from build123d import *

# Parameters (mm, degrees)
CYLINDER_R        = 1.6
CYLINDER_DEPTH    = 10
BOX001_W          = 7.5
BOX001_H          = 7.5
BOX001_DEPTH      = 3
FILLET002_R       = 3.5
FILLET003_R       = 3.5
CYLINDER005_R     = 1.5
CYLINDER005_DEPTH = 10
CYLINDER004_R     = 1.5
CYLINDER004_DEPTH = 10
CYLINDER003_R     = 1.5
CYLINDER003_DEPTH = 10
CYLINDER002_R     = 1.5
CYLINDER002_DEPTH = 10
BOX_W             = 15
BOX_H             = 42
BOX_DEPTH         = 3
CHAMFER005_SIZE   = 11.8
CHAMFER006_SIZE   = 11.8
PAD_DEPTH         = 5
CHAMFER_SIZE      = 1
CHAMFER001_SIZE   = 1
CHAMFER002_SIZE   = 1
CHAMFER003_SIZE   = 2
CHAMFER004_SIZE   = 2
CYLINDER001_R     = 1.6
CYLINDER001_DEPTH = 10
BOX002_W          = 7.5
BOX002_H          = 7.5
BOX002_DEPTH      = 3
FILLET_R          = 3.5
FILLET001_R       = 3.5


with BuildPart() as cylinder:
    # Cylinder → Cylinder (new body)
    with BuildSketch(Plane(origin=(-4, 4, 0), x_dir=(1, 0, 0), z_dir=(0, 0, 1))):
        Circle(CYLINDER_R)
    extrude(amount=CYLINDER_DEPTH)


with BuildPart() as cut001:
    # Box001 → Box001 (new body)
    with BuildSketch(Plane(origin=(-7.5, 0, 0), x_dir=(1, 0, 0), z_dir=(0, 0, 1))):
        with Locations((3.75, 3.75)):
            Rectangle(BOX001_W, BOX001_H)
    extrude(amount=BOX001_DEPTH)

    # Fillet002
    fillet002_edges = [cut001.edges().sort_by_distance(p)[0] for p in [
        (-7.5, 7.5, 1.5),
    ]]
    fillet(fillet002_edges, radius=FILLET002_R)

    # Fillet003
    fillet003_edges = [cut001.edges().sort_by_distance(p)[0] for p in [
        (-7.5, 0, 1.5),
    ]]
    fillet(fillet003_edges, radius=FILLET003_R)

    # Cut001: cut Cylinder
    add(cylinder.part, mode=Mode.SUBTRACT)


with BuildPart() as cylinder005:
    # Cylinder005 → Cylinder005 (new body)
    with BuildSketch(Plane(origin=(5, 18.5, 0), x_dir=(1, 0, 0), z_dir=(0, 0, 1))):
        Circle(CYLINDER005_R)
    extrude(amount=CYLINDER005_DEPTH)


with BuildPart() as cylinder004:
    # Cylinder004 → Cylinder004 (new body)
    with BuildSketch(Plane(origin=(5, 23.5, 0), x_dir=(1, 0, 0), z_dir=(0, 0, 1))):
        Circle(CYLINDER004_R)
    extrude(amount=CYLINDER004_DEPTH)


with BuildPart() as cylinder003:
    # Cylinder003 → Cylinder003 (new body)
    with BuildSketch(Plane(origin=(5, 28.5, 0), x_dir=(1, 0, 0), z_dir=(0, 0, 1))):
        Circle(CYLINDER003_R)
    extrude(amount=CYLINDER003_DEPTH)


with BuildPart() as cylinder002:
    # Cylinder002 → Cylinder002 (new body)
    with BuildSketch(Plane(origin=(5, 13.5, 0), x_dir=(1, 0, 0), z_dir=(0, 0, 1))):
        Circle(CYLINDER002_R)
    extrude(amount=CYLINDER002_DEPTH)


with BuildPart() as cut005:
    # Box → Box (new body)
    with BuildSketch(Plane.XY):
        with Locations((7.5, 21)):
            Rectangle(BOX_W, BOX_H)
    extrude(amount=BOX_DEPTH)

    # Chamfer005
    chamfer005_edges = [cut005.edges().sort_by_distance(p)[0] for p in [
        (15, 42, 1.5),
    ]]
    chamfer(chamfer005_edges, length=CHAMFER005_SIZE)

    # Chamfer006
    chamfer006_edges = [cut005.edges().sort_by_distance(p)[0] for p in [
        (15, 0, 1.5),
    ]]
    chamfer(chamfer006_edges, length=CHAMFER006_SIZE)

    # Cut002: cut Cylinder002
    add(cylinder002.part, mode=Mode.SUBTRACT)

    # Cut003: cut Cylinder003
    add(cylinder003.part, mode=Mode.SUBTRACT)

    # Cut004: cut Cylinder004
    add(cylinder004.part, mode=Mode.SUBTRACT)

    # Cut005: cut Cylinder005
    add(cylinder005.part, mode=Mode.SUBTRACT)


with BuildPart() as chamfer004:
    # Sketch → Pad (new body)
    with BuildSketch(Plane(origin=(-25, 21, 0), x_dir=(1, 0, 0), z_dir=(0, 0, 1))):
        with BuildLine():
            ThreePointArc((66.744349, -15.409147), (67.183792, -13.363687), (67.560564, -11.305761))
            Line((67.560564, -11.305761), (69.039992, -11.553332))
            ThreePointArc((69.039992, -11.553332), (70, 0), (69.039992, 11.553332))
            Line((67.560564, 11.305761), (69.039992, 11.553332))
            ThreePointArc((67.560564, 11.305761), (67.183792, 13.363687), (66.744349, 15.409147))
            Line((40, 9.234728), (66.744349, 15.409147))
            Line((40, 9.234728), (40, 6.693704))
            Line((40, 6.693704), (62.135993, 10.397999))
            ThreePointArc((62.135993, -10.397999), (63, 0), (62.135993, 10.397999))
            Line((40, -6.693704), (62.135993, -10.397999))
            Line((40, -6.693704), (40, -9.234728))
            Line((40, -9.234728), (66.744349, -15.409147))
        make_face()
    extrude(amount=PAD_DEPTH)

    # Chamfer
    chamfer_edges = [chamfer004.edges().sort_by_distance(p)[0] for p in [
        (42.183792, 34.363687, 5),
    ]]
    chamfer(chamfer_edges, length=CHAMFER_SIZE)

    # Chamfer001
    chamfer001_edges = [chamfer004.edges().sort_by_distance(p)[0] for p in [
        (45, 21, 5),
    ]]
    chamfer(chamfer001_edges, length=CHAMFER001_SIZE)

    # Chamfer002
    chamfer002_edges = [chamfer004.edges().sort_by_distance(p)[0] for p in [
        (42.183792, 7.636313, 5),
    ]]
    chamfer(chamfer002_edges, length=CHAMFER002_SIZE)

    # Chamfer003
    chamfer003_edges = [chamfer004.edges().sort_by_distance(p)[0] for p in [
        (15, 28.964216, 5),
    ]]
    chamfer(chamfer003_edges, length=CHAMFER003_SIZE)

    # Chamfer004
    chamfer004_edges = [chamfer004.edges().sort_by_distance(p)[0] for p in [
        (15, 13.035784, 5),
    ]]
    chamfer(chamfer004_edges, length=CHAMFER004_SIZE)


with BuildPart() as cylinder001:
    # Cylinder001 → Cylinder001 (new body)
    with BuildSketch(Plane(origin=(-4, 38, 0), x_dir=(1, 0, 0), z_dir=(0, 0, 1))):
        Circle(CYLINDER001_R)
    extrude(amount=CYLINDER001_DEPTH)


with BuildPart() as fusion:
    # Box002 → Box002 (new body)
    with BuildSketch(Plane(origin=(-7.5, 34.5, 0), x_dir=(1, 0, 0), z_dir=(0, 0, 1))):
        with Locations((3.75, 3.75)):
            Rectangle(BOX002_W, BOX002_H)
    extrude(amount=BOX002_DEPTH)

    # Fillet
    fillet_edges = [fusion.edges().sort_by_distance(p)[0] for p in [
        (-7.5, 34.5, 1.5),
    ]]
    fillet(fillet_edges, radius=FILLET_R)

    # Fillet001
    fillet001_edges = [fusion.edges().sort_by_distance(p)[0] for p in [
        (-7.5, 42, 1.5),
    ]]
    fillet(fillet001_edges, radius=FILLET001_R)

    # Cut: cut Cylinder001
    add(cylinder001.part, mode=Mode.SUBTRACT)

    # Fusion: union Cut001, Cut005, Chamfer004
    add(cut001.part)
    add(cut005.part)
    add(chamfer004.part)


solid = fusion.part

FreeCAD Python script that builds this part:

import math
import FreeCAD as App
import Part
import Sketcher
from FreeCAD import Vector
Q = App.Units.Quantity


def edges_at(feature, points):
    """Names of the edges that pass closest to the given points."""
    edges = feature.Shape.Edges
    near = lambda p: min(range(len(edges)), key=lambda i: edges[i].distToShape(Part.Vertex(*p))[0])
    return sorted({f"Edge{near(p) + 1}" for p in points})

doc = App.newDocument("Part")
body = doc.addObject("PartDesign::Body", "Body")

# Sketch on XY plane
sketch1 = body.newObject("Sketcher::SketchObject", "Sketch")
sketch1.AttachmentSupport = (doc.getObject("XY_Plane"), [""])
sketch1.MapMode = "FlatFace"
sketch1.addGeometry(Part.Circle(Vector(-4, 4, 0), Vector(0, 0, 1), 1.6), False)
sketch1.addConstraint(Sketcher.Constraint("Diameter", 0, 3.2))
sketch1.addConstraint(Sketcher.Constraint("DistanceX", 0, 3, -1, 1, 4.0))
sketch1.addConstraint(Sketcher.Constraint("DistanceY", -1, 1, 0, 3, 4.0))
pad1 = body.newObject("PartDesign::Pad", "Pad")
pad1.Profile = sketch1
pad1.Length = 10
body2 = doc.addObject("PartDesign::Body", "Body001")

# Sketch on XY plane
sketch2 = body2.newObject("Sketcher::SketchObject", "Sketch001")
sketch2.AttachmentSupport = (doc.getObject("XY_Plane001"), [""])
sketch2.MapMode = "FlatFace"
sketch2.addGeometry(Part.LineSegment(Vector(-7.5, 7.5, 0), Vector(-7.5, 0, 0)), False)
sketch2.addGeometry(Part.LineSegment(Vector(-7.5, 0, 0), Vector(0, 0, 0)), False)
sketch2.addGeometry(Part.LineSegment(Vector(0, 0, 0), Vector(0, 7.5, 0)), False)
sketch2.addGeometry(Part.LineSegment(Vector(0, 7.5, 0), Vector(-7.5, 7.5, 0)), False)
sketch2.addConstraint(Sketcher.Constraint("Coincident", 0, 2, 1, 1))
sketch2.addConstraint(Sketcher.Constraint("Coincident", 1, 2, 2, 1))
sketch2.addConstraint(Sketcher.Constraint("Coincident", 2, 2, 3, 1))
sketch2.addConstraint(Sketcher.Constraint("Coincident", 3, 2, 0, 1))
sketch2.addConstraint(Sketcher.Constraint("Vertical", 0))
sketch2.addConstraint(Sketcher.Constraint("Horizontal", 1))
sketch2.addConstraint(Sketcher.Constraint("Vertical", 2))
sketch2.addConstraint(Sketcher.Constraint("Horizontal", 3))
sketch2.addConstraint(Sketcher.Constraint("Coincident", 1, 2, -1, 1))
sketch2.addConstraint(Sketcher.Constraint("Equal", 3, 0))
sketch2.addConstraint(Sketcher.Constraint("DistanceX", 1, 1, 1, 2, 7.5))
pad2 = body2.newObject("PartDesign::Pad", "Pad001")
pad2.Profile = sketch2
pad2.Length = 3
doc.recompute()

fillet = body2.newObject("PartDesign::Fillet", "Fillet")
fillet.Base = (pad2, edges_at(pad2, [(-7.5, 7.5, 1.5)]))
fillet.Radius = 3.5
doc.recompute()

fillet2 = body2.newObject("PartDesign::Fillet", "Fillet001")
fillet2.Base = (fillet, edges_at(fillet, [(-7.5, 0, 1.5)]))
fillet2.Radius = 3.5
doc.recompute()

boolean = body2.newObject("PartDesign::Boolean", "Boolean")
boolean.Type = "Cut"
boolean.addObjects([body])
body3 = doc.addObject("PartDesign::Body", "Body002")

# Sketch on XY plane
sketch3 = body3.newObject("Sketcher::SketchObject", "Sketch002")
sketch3.AttachmentSupport = (doc.getObject("XY_Plane002"), [""])
sketch3.MapMode = "FlatFace"
sketch3.addGeometry(Part.Circle(Vector(5, 18.5, 0), Vector(0, 0, 1), 1.5), False)
sketch3.addConstraint(Sketcher.Constraint("Diameter", 0, 3.0))
sketch3.addConstraint(Sketcher.Constraint("DistanceX", -1, 1, 0, 3, 5.0))
sketch3.addConstraint(Sketcher.Constraint("DistanceY", -1, 1, 0, 3, 18.5))
pad3 = body3.newObject("PartDesign::Pad", "Pad002")
pad3.Profile = sketch3
pad3.Length = 10
body4 = doc.addObject("PartDesign::Body", "Body003")

# Sketch on XY plane
sketch4 = body4.newObject("Sketcher::SketchObject", "Sketch003")
sketch4.AttachmentSupport = (doc.getObject("XY_Plane003"), [""])
sketch4.MapMode = "FlatFace"
sketch4.addGeometry(Part.Circle(Vector(5, 23.5, 0), Vector(0, 0, 1), 1.5), False)
sketch4.addConstraint(Sketcher.Constraint("Diameter", 0, 3.0))
sketch4.addConstraint(Sketcher.Constraint("DistanceX", -1, 1, 0, 3, 5.0))
sketch4.addConstraint(Sketcher.Constraint("DistanceY", -1, 1, 0, 3, 23.5))
pad4 = body4.newObject("PartDesign::Pad", "Pad003")
pad4.Profile = sketch4
pad4.Length = 10
body5 = doc.addObject("PartDesign::Body", "Body004")

# Sketch on XY plane
sketch5 = body5.newObject("Sketcher::SketchObject", "Sketch004")
sketch5.AttachmentSupport = (doc.getObject("XY_Plane004"), [""])
sketch5.MapMode = "FlatFace"
sketch5.addGeometry(Part.Circle(Vector(5, 28.5, 0), Vector(0, 0, 1), 1.5), False)
sketch5.addConstraint(Sketcher.Constraint("Diameter", 0, 3.0))
sketch5.addConstraint(Sketcher.Constraint("DistanceX", -1, 1, 0, 3, 5.0))
sketch5.addConstraint(Sketcher.Constraint("DistanceY", -1, 1, 0, 3, 28.5))
pad5 = body5.newObject("PartDesign::Pad", "Pad004")
pad5.Profile = sketch5
pad5.Length = 10
body6 = doc.addObject("PartDesign::Body", "Body005")

# Sketch on XY plane
sketch6 = body6.newObject("Sketcher::SketchObject", "Sketch005")
sketch6.AttachmentSupport = (doc.getObject("XY_Plane005"), [""])
sketch6.MapMode = "FlatFace"
sketch6.addGeometry(Part.Circle(Vector(5, 13.5, 0), Vector(0, 0, 1), 1.5), False)
sketch6.addConstraint(Sketcher.Constraint("Diameter", 0, 3.0))
sketch6.addConstraint(Sketcher.Constraint("DistanceX", -1, 1, 0, 3, 5.0))
sketch6.addConstraint(Sketcher.Constraint("DistanceY", -1, 1, 0, 3, 13.5))
pad6 = body6.newObject("PartDesign::Pad", "Pad005")
pad6.Profile = sketch6
pad6.Length = 10
body7 = doc.addObject("PartDesign::Body", "Body006")

# Sketch on XY plane
sketch7 = body7.newObject("Sketcher::SketchObject", "Sketch006")
sketch7.AttachmentSupport = (doc.getObject("XY_Plane006"), [""])
sketch7.MapMode = "FlatFace"
sketch7.addGeometry(Part.LineSegment(Vector(0, 42, 0), Vector(0, 0, 0)), False)
sketch7.addGeometry(Part.LineSegment(Vector(0, 0, 0), Vector(15, 0, 0)), False)
sketch7.addGeometry(Part.LineSegment(Vector(15, 0, 0), Vector(15, 42, 0)), False)
sketch7.addGeometry(Part.LineSegment(Vector(15, 42, 0), Vector(0, 42, 0)), False)
sketch7.addConstraint(Sketcher.Constraint("Coincident", 0, 2, 1, 1))
sketch7.addConstraint(Sketcher.Constraint("Coincident", 1, 2, 2, 1))
sketch7.addConstraint(Sketcher.Constraint("Coincident", 2, 2, 3, 1))
sketch7.addConstraint(Sketcher.Constraint("Coincident", 3, 2, 0, 1))
sketch7.addConstraint(Sketcher.Constraint("Vertical", 0))
sketch7.addConstraint(Sketcher.Constraint("Horizontal", 1))
sketch7.addConstraint(Sketcher.Constraint("Vertical", 2))
sketch7.addConstraint(Sketcher.Constraint("Horizontal", 3))
sketch7.addConstraint(Sketcher.Constraint("Coincident", 0, 2, -1, 1))
sketch7.addConstraint(Sketcher.Constraint("DistanceX", 1, 1, 1, 2, 15.0))
sketch7.addConstraint(Sketcher.Constraint("DistanceY", 0, 2, 0, 1, 42.0))
pad7 = body7.newObject("PartDesign::Pad", "Pad006")
pad7.Profile = sketch7
pad7.Length = 3
doc.recompute()

chamfer = body7.newObject("PartDesign::Chamfer", "Chamfer")
chamfer.Base = (pad7, edges_at(pad7, [(15, 42, 1.5)]))
chamfer.Size = 11.8
doc.recompute()

chamfer2 = body7.newObject("PartDesign::Chamfer", "Chamfer001")
chamfer2.Base = (chamfer, edges_at(chamfer, [(15, 0, 1.5)]))
chamfer2.Size = 11.8
doc.recompute()

boolean2 = body7.newObject("PartDesign::Boolean", "Boolean001")
boolean2.Type = "Cut"
boolean2.addObjects([body6])
doc.recompute()

boolean3 = body7.newObject("PartDesign::Boolean", "Boolean002")
boolean3.Type = "Cut"
boolean3.addObjects([body5])
doc.recompute()

boolean4 = body7.newObject("PartDesign::Boolean", "Boolean003")
boolean4.Type = "Cut"
boolean4.addObjects([body4])
doc.recompute()

boolean5 = body7.newObject("PartDesign::Boolean", "Boolean004")
boolean5.Type = "Cut"
boolean5.addObjects([body3])
body8 = doc.addObject("PartDesign::Body", "Body007")

# Sketch on XY plane
sketch8 = body8.newObject("Sketcher::SketchObject", "Sketch007")
sketch8.AttachmentSupport = (doc.getObject("XY_Plane007"), [""])
sketch8.MapMode = "FlatFace"
sketch8.addGeometry(Part.ArcOfCircle(Part.Circle(Vector(-24.999223, 20.999858, 0), Vector(0, 0, 1), 68.49921), math.radians(-13.000031), math.radians(-9.49999)), False)
sketch8.addGeometry(Part.LineSegment(Vector(42.560564, 9.694239, 0), Vector(44.039992, 9.446668, 0)), False)
sketch8.addGeometry(Part.ArcOfCircle(Part.Circle(Vector(-24.999987, 21, 0), Vector(0, 0, 1), 69.999987), math.radians(-9.500001), math.radians(9.500001)), False)
sketch8.addGeometry(Part.LineSegment(Vector(44.039992, 32.553332, 0), Vector(42.560564, 32.305761, 0)), False)
sketch8.addGeometry(Part.ArcOfCircle(Part.Circle(Vector(-24.999223, 21.000142, 0), Vector(0, 0, 1), 68.49921), math.radians(9.49999), math.radians(13.000031)), False)
sketch8.addGeometry(Part.LineSegment(Vector(41.744349, 36.409147, 0), Vector(15, 30.234728, 0)), False)
sketch8.addGeometry(Part.LineSegment(Vector(15, 30.234728, 0), Vector(15, 27.693704, 0)), False)
sketch8.addGeometry(Part.LineSegment(Vector(15, 27.693704, 0), Vector(37.135993, 31.397999, 0)), False)
sketch8.addGeometry(Part.ArcOfCircle(Part.Circle(Vector(-25.000005, 21, 0), Vector(0, 0, 1), 63.000005), math.radians(-9.499999), math.radians(9.499999)), False)
sketch8.addGeometry(Part.LineSegment(Vector(37.135993, 10.602001, 0), Vector(15, 14.306296, 0)), False)
sketch8.addGeometry(Part.LineSegment(Vector(15, 14.306296, 0), Vector(15, 11.765272, 0)), False)
sketch8.addGeometry(Part.LineSegment(Vector(15, 11.765272, 0), Vector(41.744349, 5.590853, 0)), False)
sketch8.addConstraint(Sketcher.Constraint("Coincident", 0, 2, 1, 1))
sketch8.addConstraint(Sketcher.Constraint("Coincident", 1, 2, 2, 1))
sketch8.addConstraint(Sketcher.Constraint("Coincident", 2, 2, 3, 1))
sketch8.addConstraint(Sketcher.Constraint("Coincident", 3, 2, 4, 1))
sketch8.addConstraint(Sketcher.Constraint("Coincident", 4, 2, 5, 1))
sketch8.addConstraint(Sketcher.Constraint("Coincident", 5, 2, 6, 1))
sketch8.addConstraint(Sketcher.Constraint("Coincident", 6, 2, 7, 1))
sketch8.addConstraint(Sketcher.Constraint("Coincident", 7, 2, 8, 2))
sketch8.addConstraint(Sketcher.Constraint("Coincident", 8, 1, 9, 1))
sketch8.addConstraint(Sketcher.Constraint("Coincident", 9, 2, 10, 1))
sketch8.addConstraint(Sketcher.Constraint("Coincident", 10, 2, 11, 1))
sketch8.addConstraint(Sketcher.Constraint("Coincident", 11, 2, 0, 1))
sketch8.addConstraint(Sketcher.Constraint("Vertical", 6))
sketch8.addConstraint(Sketcher.Constraint("Vertical", 10))
sketch8.addConstraint(Sketcher.Constraint("Equal", 0, 4))
sketch8.addConstraint(Sketcher.Constraint("Parallel", 3, 7))
sketch8.addConstraint(Sketcher.Constraint("Parallel", 1, 9))
sketch8.addConstraint(Sketcher.Constraint("Horizontal", 2, 3, 8, 3))
sketch8.addConstraint(Sketcher.Constraint("Vertical", 0, 3, 4, 3))
sketch8.addConstraint(Sketcher.Constraint("Vertical", 1, 2, 2, 2))
sketch8.addConstraint(Sketcher.Constraint("Vertical", 0, 2, 3, 2))
sketch8.addConstraint(Sketcher.Constraint("Vertical", 7, 2, 8, 1))
sketch8.addConstraint(Sketcher.Constraint("Vertical", 6, 2, 9, 2))
sketch8.addConstraint(Sketcher.Constraint("Vertical", 4, 2, 11, 2))
sketch8.addConstraint(Sketcher.Constraint("Equal", 6, 10))
sketch8.addConstraint(Sketcher.Constraint("Equal", 1, 3))
sketch8.addConstraint(Sketcher.Constraint("Angle", 5, Q("-167.000001 deg")))
sketch8.addConstraint(Sketcher.Constraint("DistanceY", -1, 1, 2, 3, 21.0))
sketch8.addConstraint(Sketcher.Constraint("DistanceX", -1, 1, 5, 2, 15.0))
sketch8.addConstraint(Sketcher.Constraint("Angle", 1, Q("-9.499987 deg")))
sketch8.addConstraint(Sketcher.Constraint("Distance", 1, 1.5))
sketch8.addConstraint(Sketcher.Constraint("Radius", 0, 68.49921))
sketch8.addConstraint(Sketcher.Constraint("DistanceY", -1, 1, 7, 2, 31.397999))
sketch8.addConstraint(Sketcher.Constraint("Radius", 2, 69.999987))
sketch8.addConstraint(Sketcher.Constraint("Radius", 8, 63.000005))
sketch8.addConstraint(Sketcher.Constraint("DistanceX", 7, 2, 2, 2, 6.903999))
sketch8.addConstraint(Sketcher.Constraint("DistanceY", 6, 2, 6, 1, 2.541024))
sketch8.addConstraint(Sketcher.Constraint("DistanceY", -1, 1, 0, 3, 20.999858))
sketch8.addConstraint(Sketcher.Constraint("DistanceY", -1, 1, 0, 2, 9.694239))
sketch8.addConstraint(Sketcher.Constraint("DistanceX", -1, 1, 1, 2, 44.039992))
pad8 = body8.newObject("PartDesign::Pad", "Pad007")
pad8.Profile = sketch8
pad8.Length = 5
doc.recompute()

chamfer3 = body8.newObject("PartDesign::Chamfer", "Chamfer002")
chamfer3.Base = (pad8, edges_at(pad8, [(42.184, 34.364, 5)]))
chamfer3.Size = 1
doc.recompute()

chamfer4 = body8.newObject("PartDesign::Chamfer", "Chamfer003")
chamfer4.Base = (chamfer3, edges_at(chamfer3, [(45, 21, 5)]))
chamfer4.Size = 1
doc.recompute()

chamfer5 = body8.newObject("PartDesign::Chamfer", "Chamfer004")
chamfer5.Base = (chamfer4, edges_at(chamfer4, [(42.184, 7.636, 5)]))
chamfer5.Size = 1
doc.recompute()

chamfer6 = body8.newObject("PartDesign::Chamfer", "Chamfer005")
chamfer6.Base = (chamfer5, edges_at(chamfer5, [(15, 28.964, 5)]))
chamfer6.Size = 2
doc.recompute()

chamfer7 = body8.newObject("PartDesign::Chamfer", "Chamfer006")
chamfer7.Base = (chamfer6, edges_at(chamfer6, [(15, 13.036, 5)]))
chamfer7.Size = 2
body9 = doc.addObject("PartDesign::Body", "Body008")

# Sketch on XY plane
sketch9 = body9.newObject("Sketcher::SketchObject", "Sketch008")
sketch9.AttachmentSupport = (doc.getObject("XY_Plane008"), [""])
sketch9.MapMode = "FlatFace"
sketch9.addGeometry(Part.Circle(Vector(-4, 38, 0), Vector(0, 0, 1), 1.6), False)
sketch9.addConstraint(Sketcher.Constraint("Diameter", 0, 3.2))
sketch9.addConstraint(Sketcher.Constraint("DistanceX", 0, 3, -1, 1, 4.0))
sketch9.addConstraint(Sketcher.Constraint("DistanceY", -1, 1, 0, 3, 38.0))
pad9 = body9.newObject("PartDesign::Pad", "Pad008")
pad9.Profile = sketch9
pad9.Length = 10
body10 = doc.addObject("PartDesign::Body", "Body009")
body10.AllowCompound = True

# Sketch on XY plane
sketch10 = body10.newObject("Sketcher::SketchObject", "Sketch009")
sketch10.AttachmentSupport = (doc.getObject("XY_Plane009"), [""])
sketch10.MapMode = "FlatFace"
sketch10.addGeometry(Part.LineSegment(Vector(-7.5, 42, 0), Vector(-7.5, 34.5, 0)), False)
sketch10.addGeometry(Part.LineSegment(Vector(-7.5, 34.5, 0), Vector(0, 34.5, 0)), False)
sketch10.addGeometry(Part.LineSegment(Vector(0, 34.5, 0), Vector(0, 42, 0)), False)
sketch10.addGeometry(Part.LineSegment(Vector(0, 42, 0), Vector(-7.5, 42, 0)), False)
sketch10.addConstraint(Sketcher.Constraint("Coincident", 0, 2, 1, 1))
sketch10.addConstraint(Sketcher.Constraint("Coincident", 1, 2, 2, 1))
sketch10.addConstraint(Sketcher.Constraint("Coincident", 2, 2, 3, 1))
sketch10.addConstraint(Sketcher.Constraint("Coincident", 3, 2, 0, 1))
sketch10.addConstraint(Sketcher.Constraint("Vertical", 0))
sketch10.addConstraint(Sketcher.Constraint("Horizontal", 1))
sketch10.addConstraint(Sketcher.Constraint("Vertical", 2))
sketch10.addConstraint(Sketcher.Constraint("Horizontal", 3))
sketch10.addConstraint(Sketcher.Constraint("PointOnObject", 1, 2, -2))
sketch10.addConstraint(Sketcher.Constraint("Equal", 3, 0))
sketch10.addConstraint(Sketcher.Constraint("DistanceX", 1, 1, 1, 2, 7.5))
sketch10.addConstraint(Sketcher.Constraint("DistanceY", -1, 1, 2, 2, 42.0))
pad10 = body10.newObject("PartDesign::Pad", "Pad009")
pad10.Profile = sketch10
pad10.Length = 3
doc.recompute()

fillet3 = body10.newObject("PartDesign::Fillet", "Fillet002")
fillet3.Base = (pad10, edges_at(pad10, [(-7.5, 34.5, 1.5)]))
fillet3.Radius = 3.5
doc.recompute()

fillet4 = body10.newObject("PartDesign::Fillet", "Fillet003")
fillet4.Base = (fillet3, edges_at(fillet3, [(-7.5, 42, 1.5)]))
fillet4.Radius = 3.5
doc.recompute()

boolean6 = body10.newObject("PartDesign::Boolean", "Boolean005")
boolean6.Type = "Cut"
boolean6.addObjects([body9])
doc.recompute()

boolean7 = body10.newObject("PartDesign::Boolean", "Boolean006")
boolean7.Type = "Fuse"
boolean7.addObjects([body2])
doc.recompute()

boolean8 = body10.newObject("PartDesign::Boolean", "Boolean007")
boolean8.Type = "Fuse"
boolean8.addObjects([body7])
doc.recompute()

boolean9 = body10.newObject("PartDesign::Boolean", "Boolean008")
boolean9.Type = "Fuse"
boolean9.addObjects([body8])

doc.recompute()
